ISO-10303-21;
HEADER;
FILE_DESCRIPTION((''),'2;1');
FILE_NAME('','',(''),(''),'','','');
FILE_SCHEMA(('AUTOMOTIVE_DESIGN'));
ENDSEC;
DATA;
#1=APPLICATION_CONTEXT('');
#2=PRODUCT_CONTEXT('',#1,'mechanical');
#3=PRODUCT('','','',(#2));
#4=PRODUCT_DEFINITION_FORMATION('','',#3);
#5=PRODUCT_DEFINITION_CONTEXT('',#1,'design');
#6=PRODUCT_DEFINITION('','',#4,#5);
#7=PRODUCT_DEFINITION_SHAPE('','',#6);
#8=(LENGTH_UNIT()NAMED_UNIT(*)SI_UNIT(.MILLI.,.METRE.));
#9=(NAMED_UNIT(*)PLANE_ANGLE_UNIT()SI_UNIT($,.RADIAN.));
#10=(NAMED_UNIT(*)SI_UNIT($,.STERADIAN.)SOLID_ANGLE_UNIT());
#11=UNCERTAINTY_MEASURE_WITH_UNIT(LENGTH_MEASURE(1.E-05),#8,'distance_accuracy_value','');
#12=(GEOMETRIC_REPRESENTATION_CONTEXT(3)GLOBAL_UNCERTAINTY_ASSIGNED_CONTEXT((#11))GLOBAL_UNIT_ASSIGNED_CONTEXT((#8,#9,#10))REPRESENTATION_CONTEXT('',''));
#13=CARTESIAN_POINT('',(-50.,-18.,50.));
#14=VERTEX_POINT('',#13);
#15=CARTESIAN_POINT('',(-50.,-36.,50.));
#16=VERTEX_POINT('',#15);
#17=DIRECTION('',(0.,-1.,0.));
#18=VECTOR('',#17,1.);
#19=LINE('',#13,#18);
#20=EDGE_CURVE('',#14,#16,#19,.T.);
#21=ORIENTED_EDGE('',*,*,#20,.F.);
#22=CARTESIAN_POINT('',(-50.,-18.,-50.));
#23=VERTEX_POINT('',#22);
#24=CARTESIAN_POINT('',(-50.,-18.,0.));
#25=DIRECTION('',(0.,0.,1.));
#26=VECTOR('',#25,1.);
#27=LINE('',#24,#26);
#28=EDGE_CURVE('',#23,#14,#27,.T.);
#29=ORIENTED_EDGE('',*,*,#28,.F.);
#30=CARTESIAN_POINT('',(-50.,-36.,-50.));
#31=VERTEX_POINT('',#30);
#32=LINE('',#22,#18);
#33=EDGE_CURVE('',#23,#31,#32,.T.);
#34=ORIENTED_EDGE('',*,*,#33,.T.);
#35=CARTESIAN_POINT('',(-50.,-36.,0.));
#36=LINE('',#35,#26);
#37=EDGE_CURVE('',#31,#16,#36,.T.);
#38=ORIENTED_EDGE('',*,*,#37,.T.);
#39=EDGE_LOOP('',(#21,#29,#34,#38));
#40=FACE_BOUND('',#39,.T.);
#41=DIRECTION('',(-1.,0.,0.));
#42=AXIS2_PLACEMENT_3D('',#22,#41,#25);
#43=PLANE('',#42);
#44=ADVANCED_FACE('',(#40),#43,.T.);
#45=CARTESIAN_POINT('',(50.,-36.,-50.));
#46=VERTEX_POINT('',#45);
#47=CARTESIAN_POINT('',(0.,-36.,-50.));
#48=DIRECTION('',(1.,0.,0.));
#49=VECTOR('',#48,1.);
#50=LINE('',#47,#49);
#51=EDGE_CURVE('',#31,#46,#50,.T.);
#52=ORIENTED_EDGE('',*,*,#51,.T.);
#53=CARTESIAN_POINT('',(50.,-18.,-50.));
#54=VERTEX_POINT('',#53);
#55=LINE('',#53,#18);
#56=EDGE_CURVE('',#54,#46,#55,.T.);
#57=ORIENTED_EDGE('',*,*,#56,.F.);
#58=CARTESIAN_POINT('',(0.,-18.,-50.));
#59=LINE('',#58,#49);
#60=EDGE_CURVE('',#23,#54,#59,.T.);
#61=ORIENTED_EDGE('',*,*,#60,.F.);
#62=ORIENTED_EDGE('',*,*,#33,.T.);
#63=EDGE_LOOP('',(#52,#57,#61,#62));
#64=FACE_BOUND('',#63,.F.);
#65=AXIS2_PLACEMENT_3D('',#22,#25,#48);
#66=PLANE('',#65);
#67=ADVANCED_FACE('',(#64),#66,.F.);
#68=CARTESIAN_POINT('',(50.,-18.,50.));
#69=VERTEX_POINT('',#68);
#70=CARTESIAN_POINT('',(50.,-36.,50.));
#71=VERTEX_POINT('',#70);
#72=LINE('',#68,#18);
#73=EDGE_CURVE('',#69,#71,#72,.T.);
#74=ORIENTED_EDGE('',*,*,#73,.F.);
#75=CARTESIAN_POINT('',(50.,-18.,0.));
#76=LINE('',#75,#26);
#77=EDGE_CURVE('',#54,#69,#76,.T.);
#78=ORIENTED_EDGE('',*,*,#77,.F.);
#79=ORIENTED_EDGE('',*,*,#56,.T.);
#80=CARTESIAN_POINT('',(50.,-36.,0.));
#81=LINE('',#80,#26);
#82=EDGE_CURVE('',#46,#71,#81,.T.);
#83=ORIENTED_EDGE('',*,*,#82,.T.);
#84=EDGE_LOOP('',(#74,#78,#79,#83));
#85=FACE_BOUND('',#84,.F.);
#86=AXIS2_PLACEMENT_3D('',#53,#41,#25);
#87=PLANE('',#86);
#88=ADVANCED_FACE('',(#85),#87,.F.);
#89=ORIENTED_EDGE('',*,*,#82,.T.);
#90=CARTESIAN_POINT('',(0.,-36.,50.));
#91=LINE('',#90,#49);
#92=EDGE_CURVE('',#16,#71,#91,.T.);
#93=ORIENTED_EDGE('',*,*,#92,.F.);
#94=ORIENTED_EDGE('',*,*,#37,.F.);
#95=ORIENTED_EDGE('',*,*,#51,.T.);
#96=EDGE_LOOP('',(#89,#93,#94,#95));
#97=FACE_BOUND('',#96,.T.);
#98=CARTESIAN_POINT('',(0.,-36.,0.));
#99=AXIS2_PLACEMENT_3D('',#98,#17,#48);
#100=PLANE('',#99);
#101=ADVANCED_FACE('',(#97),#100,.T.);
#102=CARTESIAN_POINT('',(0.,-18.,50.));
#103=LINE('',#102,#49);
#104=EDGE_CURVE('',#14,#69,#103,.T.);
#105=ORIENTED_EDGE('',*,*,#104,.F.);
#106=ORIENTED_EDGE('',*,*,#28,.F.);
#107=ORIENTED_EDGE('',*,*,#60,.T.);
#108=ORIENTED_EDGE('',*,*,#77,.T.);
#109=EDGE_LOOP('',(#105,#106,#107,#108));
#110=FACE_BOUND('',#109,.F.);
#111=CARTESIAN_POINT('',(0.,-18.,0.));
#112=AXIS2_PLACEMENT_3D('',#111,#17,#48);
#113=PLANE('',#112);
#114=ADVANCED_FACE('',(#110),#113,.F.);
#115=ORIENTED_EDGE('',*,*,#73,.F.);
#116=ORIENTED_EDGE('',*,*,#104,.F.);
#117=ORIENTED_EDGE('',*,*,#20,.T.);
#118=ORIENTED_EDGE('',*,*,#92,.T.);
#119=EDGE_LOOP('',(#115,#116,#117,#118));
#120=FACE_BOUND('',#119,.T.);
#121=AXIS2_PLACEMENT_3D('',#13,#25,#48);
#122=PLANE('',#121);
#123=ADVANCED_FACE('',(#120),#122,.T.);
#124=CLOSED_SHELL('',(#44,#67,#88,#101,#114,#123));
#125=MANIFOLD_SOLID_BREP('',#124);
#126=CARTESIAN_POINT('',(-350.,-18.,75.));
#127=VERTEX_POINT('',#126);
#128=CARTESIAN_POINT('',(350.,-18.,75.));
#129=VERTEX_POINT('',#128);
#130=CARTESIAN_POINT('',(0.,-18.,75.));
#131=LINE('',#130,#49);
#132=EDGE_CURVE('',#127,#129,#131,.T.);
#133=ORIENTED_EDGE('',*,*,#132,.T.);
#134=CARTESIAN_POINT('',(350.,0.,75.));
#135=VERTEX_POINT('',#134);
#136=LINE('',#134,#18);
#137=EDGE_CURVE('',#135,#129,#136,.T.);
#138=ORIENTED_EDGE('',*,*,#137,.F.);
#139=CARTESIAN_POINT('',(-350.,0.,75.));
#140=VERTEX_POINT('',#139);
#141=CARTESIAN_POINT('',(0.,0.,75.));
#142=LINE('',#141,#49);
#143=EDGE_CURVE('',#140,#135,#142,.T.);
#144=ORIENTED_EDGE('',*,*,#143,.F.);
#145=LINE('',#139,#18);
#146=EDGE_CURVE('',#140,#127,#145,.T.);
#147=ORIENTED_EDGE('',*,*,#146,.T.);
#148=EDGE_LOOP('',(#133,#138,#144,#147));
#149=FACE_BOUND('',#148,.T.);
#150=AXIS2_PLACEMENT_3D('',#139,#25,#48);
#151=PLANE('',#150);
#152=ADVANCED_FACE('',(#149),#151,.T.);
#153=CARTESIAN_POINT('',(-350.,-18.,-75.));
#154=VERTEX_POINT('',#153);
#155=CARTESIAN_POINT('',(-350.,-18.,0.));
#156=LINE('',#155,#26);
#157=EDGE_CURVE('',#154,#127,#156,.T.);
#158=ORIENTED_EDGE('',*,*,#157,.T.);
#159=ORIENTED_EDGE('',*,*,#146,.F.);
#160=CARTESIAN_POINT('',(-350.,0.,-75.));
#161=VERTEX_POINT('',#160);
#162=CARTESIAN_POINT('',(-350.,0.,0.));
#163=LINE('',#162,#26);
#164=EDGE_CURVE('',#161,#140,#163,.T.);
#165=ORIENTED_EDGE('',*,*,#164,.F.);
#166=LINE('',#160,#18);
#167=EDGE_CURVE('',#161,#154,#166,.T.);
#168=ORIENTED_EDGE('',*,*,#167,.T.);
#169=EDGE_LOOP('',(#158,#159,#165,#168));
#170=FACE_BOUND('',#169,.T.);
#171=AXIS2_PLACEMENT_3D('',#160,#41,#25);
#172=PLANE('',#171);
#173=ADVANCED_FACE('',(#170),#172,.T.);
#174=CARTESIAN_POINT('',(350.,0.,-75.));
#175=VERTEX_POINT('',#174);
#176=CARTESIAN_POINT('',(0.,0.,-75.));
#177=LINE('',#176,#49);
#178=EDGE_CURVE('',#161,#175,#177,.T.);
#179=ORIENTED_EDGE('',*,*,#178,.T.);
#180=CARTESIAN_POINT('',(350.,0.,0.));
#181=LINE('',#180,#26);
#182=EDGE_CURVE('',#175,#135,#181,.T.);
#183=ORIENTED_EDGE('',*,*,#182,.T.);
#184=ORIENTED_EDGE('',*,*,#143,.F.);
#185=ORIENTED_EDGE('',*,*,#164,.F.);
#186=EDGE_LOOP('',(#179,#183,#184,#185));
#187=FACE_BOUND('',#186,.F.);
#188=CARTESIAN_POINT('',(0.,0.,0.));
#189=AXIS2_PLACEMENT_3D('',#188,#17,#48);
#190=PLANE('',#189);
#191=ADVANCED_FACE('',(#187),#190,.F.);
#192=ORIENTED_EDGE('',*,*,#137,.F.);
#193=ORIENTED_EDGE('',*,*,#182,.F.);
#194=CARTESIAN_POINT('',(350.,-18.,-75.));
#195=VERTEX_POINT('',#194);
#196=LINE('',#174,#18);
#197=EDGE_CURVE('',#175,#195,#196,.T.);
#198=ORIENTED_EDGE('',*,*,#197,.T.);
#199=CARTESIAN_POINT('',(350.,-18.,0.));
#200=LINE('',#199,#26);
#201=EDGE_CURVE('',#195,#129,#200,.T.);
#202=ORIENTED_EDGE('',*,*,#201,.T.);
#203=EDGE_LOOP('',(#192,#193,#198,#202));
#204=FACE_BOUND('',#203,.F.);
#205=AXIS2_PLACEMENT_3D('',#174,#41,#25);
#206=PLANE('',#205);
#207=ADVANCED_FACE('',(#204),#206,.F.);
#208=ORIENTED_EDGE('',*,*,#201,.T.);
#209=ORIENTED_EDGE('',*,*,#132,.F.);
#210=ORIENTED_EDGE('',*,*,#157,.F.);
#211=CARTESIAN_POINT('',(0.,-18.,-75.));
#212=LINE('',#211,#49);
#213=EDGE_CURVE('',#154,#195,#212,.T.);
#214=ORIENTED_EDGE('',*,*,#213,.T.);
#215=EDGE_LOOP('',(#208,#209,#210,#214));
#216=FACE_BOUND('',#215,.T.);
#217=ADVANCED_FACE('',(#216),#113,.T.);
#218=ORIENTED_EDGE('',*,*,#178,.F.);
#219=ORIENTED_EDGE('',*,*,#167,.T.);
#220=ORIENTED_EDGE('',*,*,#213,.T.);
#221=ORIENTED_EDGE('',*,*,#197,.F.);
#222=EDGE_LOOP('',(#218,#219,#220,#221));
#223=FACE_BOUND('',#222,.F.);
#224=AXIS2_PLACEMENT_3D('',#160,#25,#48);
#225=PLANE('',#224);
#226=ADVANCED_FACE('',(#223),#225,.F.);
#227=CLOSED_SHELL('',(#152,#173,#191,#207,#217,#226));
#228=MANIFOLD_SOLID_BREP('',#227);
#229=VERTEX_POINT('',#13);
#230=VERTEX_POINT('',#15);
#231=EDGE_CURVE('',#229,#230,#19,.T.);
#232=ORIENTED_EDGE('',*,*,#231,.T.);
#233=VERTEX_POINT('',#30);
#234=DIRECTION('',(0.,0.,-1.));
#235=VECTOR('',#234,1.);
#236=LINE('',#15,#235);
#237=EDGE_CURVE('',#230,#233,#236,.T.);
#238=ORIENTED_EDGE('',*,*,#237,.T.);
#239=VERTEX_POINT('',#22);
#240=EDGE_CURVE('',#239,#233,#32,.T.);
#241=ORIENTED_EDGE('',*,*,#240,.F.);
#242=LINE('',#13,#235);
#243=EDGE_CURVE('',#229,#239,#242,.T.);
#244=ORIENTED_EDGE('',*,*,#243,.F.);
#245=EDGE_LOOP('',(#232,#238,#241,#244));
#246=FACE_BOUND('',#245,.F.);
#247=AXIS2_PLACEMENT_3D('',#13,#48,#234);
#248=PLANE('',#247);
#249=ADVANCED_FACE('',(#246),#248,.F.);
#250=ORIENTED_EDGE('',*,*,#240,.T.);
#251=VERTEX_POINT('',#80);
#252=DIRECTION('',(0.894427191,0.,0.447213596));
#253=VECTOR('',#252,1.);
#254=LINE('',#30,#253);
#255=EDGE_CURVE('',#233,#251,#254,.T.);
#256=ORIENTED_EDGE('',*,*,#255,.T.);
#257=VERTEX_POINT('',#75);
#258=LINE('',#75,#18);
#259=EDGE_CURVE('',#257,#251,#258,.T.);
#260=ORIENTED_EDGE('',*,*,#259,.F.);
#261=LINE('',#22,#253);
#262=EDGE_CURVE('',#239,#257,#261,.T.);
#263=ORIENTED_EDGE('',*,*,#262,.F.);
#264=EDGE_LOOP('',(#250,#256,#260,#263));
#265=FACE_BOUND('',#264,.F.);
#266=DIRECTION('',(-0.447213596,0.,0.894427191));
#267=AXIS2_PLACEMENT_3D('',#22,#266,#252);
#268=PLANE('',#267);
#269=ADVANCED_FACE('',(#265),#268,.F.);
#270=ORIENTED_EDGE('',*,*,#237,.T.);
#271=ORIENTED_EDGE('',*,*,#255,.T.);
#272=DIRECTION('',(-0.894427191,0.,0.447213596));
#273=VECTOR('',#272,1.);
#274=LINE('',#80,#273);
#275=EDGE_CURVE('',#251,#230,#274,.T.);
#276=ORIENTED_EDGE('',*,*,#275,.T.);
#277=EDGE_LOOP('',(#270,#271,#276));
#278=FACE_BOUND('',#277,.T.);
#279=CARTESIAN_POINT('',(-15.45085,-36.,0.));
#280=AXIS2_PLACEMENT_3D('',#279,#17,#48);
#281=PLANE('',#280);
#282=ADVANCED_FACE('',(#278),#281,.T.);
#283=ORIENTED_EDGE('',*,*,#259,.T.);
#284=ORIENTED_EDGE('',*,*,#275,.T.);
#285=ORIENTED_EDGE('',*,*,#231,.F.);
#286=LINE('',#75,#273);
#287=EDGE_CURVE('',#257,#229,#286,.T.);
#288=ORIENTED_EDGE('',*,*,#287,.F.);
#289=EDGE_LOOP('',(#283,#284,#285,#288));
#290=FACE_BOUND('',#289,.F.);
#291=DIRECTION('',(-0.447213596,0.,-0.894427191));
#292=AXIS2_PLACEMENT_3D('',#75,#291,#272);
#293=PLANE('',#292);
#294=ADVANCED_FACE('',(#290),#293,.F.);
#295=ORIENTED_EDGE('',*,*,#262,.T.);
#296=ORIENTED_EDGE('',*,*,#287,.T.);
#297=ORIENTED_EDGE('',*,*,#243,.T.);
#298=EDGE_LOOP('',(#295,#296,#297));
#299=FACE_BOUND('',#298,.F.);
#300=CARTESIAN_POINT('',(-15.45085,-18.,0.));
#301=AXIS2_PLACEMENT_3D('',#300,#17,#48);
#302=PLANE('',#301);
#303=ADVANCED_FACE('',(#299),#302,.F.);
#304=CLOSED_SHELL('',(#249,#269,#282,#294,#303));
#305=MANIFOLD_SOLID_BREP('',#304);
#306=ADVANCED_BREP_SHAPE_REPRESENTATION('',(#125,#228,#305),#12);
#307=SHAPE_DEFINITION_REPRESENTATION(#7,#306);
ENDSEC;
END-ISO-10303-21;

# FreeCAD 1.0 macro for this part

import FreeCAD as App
import Part
import Sketcher
from FreeCAD import Vector


def add_polygon(sketch, points):
    """Adds a closed chain of lines whose ends are joined by coincident constraints."""
    first, n = sketch.GeometryCount, len(points)
    for a, b in zip(points, points[1:] + points[:1]):
        sketch.addGeometry(Part.LineSegment(App.Vector(*a, 0), App.Vector(*b, 0)), False)
    for i in range(n):
        sketch.addConstraint(Sketcher.Constraint("Coincident", first + i, 2, first + (i + 1) % n, 1))

doc = App.newDocument("Part")
params = doc.addObject("Spreadsheet::Sheet", "Params")
for row, (alias, value) in enumerate([
    ("sketch1_width", "700 mm"),
    ("sketch1_height", "150 mm"),
    ("pad1_length", "18 mm"),
    ("sketch2_width", "100 mm"),
    ("pad2_length", "18 mm"),
    ("sketch3_height", "100 mm"),
    ("pad3_length", "18 mm"),
], start=1):
    params.set(f"A{row}", alias)
    params.set(f"B{row}", "=" + value)
    params.setAlias(f"B{row}", alias)

body = doc.addObject("PartDesign::Body", "Body")

# Sketch on XZ plane
sketch1 = body.newObject("Sketcher::SketchObject", "Sketch")
sketch1.AttachmentSupport = (doc.getObject("XZ_Plane"), [""])
sketch1.MapMode = "FlatFace"
add_polygon(sketch1, [(-350, 75), (-350, -75), (350, -75), (350, 75)])  # lines 0-3
sketch1.addConstraint(Sketcher.Constraint("Vertical", 0))
sketch1.addConstraint(Sketcher.Constraint("Horizontal", 1))
sketch1.addConstraint(Sketcher.Constraint("Vertical", 2))
sketch1.addConstraint(Sketcher.Constraint("Horizontal", 3))
sketch1.addConstraint(Sketcher.Constraint("Symmetric", 0, 2, 2, 2, -1, 1))
sketch1.addConstraint(Sketcher.Constraint("DistanceX", 1, 1, 1, 2, 700.0))
sketch1.addConstraint(Sketcher.Constraint("DistanceY", 0, 2, 0, 1, 150.0))
sketch1.setExpression("Constraints[9]", "Params.sketch1_width")
sketch1.setExpression("Constraints[10]", "Params.sketch1_height")
pad1 = body.newObject("PartDesign::Pad", "Pad")
pad1.Profile = sketch1
pad1.setExpression("Length", "Params.pad1_length")
body2 = doc.addObject("PartDesign::Body", "Body001")

# Sketch on XZ plane
sketch2 = body2.newObject("Sketcher::SketchObject", "Sketch001")
sketch2.AttachmentSupport = (doc.getObject("XZ_Plane001"), [""])
sketch2.MapMode = "FlatFace"
sketch2.AttachmentOffset = App.Placement(Vector(0, 0, 18), App.Rotation())
add_polygon(sketch2, [(-50, 50), (-50, -50), (50, -50), (50, 50)])  # lines 0-3
sketch2.addConstraint(Sketcher.Constraint("Vertical", 0))
sketch2.addConstraint(Sketcher.Constraint("Horizontal", 1))
sketch2.addConstraint(Sketcher.Constraint("Vertical", 2))
sketch2.addConstraint(Sketcher.Constraint("Horizontal", 3))
sketch2.addConstraint(Sketcher.Constraint("Symmetric", 0, 2, 2, 2, -1, 1))
sketch2.addConstraint(Sketcher.Constraint("Equal", 3, 0))
sketch2.addConstraint(Sketcher.Constraint("DistanceX", 1, 1, 1, 2, 100.0))
sketch2.setExpression("Constraints[10]", "Params.sketch2_width")
pad2 = body2.newObject("PartDesign::Pad", "Pad001")
pad2.Profile = sketch2
pad2.setExpression("Length", "Params.pad2_length")
body3 = doc.addObject("PartDesign::Body", "Body002")

# Sketch on XZ plane
sketch3 = body3.newObject("Sketcher::SketchObject", "Sketch002")
sketch3.AttachmentSupport = (doc.getObject("XZ_Plane002"), [""])
sketch3.MapMode = "FlatFace"
sketch3.AttachmentOffset = App.Placement(Vector(0, 0, 18), App.Rotation())
add_polygon(sketch3, [(50, 0), (-50, 50), (-50, -50)])  # lines 0-2
sketch3.addConstraint(Sketcher.Constraint("Vertical", 1))
sketch3.addConstraint(Sketcher.Constraint("PointOnObject", 2, 2, -1))
sketch3.addConstraint(Sketcher.Constraint("Equal", 0, 2))
sketch3.addConstraint(Sketcher.Constraint("DistanceY", 1, 2, 1, 1, 100.0))
sketch3.addConstraint(Sketcher.Constraint("DistanceX", 0, 2, -1, 1, 50.0))
sketch3.addConstraint(Sketcher.Constraint("DistanceX", -1, 1, 2, 2, 50.0))
sketch3.setExpression("Constraints[6]", "Params.sketch3_height")
pad3 = body3.newObject("PartDesign::Pad", "Pad002")
pad3.Profile = sketch3
pad3.setExpression("Length", "Params.pad3_length")

doc.recompute()
